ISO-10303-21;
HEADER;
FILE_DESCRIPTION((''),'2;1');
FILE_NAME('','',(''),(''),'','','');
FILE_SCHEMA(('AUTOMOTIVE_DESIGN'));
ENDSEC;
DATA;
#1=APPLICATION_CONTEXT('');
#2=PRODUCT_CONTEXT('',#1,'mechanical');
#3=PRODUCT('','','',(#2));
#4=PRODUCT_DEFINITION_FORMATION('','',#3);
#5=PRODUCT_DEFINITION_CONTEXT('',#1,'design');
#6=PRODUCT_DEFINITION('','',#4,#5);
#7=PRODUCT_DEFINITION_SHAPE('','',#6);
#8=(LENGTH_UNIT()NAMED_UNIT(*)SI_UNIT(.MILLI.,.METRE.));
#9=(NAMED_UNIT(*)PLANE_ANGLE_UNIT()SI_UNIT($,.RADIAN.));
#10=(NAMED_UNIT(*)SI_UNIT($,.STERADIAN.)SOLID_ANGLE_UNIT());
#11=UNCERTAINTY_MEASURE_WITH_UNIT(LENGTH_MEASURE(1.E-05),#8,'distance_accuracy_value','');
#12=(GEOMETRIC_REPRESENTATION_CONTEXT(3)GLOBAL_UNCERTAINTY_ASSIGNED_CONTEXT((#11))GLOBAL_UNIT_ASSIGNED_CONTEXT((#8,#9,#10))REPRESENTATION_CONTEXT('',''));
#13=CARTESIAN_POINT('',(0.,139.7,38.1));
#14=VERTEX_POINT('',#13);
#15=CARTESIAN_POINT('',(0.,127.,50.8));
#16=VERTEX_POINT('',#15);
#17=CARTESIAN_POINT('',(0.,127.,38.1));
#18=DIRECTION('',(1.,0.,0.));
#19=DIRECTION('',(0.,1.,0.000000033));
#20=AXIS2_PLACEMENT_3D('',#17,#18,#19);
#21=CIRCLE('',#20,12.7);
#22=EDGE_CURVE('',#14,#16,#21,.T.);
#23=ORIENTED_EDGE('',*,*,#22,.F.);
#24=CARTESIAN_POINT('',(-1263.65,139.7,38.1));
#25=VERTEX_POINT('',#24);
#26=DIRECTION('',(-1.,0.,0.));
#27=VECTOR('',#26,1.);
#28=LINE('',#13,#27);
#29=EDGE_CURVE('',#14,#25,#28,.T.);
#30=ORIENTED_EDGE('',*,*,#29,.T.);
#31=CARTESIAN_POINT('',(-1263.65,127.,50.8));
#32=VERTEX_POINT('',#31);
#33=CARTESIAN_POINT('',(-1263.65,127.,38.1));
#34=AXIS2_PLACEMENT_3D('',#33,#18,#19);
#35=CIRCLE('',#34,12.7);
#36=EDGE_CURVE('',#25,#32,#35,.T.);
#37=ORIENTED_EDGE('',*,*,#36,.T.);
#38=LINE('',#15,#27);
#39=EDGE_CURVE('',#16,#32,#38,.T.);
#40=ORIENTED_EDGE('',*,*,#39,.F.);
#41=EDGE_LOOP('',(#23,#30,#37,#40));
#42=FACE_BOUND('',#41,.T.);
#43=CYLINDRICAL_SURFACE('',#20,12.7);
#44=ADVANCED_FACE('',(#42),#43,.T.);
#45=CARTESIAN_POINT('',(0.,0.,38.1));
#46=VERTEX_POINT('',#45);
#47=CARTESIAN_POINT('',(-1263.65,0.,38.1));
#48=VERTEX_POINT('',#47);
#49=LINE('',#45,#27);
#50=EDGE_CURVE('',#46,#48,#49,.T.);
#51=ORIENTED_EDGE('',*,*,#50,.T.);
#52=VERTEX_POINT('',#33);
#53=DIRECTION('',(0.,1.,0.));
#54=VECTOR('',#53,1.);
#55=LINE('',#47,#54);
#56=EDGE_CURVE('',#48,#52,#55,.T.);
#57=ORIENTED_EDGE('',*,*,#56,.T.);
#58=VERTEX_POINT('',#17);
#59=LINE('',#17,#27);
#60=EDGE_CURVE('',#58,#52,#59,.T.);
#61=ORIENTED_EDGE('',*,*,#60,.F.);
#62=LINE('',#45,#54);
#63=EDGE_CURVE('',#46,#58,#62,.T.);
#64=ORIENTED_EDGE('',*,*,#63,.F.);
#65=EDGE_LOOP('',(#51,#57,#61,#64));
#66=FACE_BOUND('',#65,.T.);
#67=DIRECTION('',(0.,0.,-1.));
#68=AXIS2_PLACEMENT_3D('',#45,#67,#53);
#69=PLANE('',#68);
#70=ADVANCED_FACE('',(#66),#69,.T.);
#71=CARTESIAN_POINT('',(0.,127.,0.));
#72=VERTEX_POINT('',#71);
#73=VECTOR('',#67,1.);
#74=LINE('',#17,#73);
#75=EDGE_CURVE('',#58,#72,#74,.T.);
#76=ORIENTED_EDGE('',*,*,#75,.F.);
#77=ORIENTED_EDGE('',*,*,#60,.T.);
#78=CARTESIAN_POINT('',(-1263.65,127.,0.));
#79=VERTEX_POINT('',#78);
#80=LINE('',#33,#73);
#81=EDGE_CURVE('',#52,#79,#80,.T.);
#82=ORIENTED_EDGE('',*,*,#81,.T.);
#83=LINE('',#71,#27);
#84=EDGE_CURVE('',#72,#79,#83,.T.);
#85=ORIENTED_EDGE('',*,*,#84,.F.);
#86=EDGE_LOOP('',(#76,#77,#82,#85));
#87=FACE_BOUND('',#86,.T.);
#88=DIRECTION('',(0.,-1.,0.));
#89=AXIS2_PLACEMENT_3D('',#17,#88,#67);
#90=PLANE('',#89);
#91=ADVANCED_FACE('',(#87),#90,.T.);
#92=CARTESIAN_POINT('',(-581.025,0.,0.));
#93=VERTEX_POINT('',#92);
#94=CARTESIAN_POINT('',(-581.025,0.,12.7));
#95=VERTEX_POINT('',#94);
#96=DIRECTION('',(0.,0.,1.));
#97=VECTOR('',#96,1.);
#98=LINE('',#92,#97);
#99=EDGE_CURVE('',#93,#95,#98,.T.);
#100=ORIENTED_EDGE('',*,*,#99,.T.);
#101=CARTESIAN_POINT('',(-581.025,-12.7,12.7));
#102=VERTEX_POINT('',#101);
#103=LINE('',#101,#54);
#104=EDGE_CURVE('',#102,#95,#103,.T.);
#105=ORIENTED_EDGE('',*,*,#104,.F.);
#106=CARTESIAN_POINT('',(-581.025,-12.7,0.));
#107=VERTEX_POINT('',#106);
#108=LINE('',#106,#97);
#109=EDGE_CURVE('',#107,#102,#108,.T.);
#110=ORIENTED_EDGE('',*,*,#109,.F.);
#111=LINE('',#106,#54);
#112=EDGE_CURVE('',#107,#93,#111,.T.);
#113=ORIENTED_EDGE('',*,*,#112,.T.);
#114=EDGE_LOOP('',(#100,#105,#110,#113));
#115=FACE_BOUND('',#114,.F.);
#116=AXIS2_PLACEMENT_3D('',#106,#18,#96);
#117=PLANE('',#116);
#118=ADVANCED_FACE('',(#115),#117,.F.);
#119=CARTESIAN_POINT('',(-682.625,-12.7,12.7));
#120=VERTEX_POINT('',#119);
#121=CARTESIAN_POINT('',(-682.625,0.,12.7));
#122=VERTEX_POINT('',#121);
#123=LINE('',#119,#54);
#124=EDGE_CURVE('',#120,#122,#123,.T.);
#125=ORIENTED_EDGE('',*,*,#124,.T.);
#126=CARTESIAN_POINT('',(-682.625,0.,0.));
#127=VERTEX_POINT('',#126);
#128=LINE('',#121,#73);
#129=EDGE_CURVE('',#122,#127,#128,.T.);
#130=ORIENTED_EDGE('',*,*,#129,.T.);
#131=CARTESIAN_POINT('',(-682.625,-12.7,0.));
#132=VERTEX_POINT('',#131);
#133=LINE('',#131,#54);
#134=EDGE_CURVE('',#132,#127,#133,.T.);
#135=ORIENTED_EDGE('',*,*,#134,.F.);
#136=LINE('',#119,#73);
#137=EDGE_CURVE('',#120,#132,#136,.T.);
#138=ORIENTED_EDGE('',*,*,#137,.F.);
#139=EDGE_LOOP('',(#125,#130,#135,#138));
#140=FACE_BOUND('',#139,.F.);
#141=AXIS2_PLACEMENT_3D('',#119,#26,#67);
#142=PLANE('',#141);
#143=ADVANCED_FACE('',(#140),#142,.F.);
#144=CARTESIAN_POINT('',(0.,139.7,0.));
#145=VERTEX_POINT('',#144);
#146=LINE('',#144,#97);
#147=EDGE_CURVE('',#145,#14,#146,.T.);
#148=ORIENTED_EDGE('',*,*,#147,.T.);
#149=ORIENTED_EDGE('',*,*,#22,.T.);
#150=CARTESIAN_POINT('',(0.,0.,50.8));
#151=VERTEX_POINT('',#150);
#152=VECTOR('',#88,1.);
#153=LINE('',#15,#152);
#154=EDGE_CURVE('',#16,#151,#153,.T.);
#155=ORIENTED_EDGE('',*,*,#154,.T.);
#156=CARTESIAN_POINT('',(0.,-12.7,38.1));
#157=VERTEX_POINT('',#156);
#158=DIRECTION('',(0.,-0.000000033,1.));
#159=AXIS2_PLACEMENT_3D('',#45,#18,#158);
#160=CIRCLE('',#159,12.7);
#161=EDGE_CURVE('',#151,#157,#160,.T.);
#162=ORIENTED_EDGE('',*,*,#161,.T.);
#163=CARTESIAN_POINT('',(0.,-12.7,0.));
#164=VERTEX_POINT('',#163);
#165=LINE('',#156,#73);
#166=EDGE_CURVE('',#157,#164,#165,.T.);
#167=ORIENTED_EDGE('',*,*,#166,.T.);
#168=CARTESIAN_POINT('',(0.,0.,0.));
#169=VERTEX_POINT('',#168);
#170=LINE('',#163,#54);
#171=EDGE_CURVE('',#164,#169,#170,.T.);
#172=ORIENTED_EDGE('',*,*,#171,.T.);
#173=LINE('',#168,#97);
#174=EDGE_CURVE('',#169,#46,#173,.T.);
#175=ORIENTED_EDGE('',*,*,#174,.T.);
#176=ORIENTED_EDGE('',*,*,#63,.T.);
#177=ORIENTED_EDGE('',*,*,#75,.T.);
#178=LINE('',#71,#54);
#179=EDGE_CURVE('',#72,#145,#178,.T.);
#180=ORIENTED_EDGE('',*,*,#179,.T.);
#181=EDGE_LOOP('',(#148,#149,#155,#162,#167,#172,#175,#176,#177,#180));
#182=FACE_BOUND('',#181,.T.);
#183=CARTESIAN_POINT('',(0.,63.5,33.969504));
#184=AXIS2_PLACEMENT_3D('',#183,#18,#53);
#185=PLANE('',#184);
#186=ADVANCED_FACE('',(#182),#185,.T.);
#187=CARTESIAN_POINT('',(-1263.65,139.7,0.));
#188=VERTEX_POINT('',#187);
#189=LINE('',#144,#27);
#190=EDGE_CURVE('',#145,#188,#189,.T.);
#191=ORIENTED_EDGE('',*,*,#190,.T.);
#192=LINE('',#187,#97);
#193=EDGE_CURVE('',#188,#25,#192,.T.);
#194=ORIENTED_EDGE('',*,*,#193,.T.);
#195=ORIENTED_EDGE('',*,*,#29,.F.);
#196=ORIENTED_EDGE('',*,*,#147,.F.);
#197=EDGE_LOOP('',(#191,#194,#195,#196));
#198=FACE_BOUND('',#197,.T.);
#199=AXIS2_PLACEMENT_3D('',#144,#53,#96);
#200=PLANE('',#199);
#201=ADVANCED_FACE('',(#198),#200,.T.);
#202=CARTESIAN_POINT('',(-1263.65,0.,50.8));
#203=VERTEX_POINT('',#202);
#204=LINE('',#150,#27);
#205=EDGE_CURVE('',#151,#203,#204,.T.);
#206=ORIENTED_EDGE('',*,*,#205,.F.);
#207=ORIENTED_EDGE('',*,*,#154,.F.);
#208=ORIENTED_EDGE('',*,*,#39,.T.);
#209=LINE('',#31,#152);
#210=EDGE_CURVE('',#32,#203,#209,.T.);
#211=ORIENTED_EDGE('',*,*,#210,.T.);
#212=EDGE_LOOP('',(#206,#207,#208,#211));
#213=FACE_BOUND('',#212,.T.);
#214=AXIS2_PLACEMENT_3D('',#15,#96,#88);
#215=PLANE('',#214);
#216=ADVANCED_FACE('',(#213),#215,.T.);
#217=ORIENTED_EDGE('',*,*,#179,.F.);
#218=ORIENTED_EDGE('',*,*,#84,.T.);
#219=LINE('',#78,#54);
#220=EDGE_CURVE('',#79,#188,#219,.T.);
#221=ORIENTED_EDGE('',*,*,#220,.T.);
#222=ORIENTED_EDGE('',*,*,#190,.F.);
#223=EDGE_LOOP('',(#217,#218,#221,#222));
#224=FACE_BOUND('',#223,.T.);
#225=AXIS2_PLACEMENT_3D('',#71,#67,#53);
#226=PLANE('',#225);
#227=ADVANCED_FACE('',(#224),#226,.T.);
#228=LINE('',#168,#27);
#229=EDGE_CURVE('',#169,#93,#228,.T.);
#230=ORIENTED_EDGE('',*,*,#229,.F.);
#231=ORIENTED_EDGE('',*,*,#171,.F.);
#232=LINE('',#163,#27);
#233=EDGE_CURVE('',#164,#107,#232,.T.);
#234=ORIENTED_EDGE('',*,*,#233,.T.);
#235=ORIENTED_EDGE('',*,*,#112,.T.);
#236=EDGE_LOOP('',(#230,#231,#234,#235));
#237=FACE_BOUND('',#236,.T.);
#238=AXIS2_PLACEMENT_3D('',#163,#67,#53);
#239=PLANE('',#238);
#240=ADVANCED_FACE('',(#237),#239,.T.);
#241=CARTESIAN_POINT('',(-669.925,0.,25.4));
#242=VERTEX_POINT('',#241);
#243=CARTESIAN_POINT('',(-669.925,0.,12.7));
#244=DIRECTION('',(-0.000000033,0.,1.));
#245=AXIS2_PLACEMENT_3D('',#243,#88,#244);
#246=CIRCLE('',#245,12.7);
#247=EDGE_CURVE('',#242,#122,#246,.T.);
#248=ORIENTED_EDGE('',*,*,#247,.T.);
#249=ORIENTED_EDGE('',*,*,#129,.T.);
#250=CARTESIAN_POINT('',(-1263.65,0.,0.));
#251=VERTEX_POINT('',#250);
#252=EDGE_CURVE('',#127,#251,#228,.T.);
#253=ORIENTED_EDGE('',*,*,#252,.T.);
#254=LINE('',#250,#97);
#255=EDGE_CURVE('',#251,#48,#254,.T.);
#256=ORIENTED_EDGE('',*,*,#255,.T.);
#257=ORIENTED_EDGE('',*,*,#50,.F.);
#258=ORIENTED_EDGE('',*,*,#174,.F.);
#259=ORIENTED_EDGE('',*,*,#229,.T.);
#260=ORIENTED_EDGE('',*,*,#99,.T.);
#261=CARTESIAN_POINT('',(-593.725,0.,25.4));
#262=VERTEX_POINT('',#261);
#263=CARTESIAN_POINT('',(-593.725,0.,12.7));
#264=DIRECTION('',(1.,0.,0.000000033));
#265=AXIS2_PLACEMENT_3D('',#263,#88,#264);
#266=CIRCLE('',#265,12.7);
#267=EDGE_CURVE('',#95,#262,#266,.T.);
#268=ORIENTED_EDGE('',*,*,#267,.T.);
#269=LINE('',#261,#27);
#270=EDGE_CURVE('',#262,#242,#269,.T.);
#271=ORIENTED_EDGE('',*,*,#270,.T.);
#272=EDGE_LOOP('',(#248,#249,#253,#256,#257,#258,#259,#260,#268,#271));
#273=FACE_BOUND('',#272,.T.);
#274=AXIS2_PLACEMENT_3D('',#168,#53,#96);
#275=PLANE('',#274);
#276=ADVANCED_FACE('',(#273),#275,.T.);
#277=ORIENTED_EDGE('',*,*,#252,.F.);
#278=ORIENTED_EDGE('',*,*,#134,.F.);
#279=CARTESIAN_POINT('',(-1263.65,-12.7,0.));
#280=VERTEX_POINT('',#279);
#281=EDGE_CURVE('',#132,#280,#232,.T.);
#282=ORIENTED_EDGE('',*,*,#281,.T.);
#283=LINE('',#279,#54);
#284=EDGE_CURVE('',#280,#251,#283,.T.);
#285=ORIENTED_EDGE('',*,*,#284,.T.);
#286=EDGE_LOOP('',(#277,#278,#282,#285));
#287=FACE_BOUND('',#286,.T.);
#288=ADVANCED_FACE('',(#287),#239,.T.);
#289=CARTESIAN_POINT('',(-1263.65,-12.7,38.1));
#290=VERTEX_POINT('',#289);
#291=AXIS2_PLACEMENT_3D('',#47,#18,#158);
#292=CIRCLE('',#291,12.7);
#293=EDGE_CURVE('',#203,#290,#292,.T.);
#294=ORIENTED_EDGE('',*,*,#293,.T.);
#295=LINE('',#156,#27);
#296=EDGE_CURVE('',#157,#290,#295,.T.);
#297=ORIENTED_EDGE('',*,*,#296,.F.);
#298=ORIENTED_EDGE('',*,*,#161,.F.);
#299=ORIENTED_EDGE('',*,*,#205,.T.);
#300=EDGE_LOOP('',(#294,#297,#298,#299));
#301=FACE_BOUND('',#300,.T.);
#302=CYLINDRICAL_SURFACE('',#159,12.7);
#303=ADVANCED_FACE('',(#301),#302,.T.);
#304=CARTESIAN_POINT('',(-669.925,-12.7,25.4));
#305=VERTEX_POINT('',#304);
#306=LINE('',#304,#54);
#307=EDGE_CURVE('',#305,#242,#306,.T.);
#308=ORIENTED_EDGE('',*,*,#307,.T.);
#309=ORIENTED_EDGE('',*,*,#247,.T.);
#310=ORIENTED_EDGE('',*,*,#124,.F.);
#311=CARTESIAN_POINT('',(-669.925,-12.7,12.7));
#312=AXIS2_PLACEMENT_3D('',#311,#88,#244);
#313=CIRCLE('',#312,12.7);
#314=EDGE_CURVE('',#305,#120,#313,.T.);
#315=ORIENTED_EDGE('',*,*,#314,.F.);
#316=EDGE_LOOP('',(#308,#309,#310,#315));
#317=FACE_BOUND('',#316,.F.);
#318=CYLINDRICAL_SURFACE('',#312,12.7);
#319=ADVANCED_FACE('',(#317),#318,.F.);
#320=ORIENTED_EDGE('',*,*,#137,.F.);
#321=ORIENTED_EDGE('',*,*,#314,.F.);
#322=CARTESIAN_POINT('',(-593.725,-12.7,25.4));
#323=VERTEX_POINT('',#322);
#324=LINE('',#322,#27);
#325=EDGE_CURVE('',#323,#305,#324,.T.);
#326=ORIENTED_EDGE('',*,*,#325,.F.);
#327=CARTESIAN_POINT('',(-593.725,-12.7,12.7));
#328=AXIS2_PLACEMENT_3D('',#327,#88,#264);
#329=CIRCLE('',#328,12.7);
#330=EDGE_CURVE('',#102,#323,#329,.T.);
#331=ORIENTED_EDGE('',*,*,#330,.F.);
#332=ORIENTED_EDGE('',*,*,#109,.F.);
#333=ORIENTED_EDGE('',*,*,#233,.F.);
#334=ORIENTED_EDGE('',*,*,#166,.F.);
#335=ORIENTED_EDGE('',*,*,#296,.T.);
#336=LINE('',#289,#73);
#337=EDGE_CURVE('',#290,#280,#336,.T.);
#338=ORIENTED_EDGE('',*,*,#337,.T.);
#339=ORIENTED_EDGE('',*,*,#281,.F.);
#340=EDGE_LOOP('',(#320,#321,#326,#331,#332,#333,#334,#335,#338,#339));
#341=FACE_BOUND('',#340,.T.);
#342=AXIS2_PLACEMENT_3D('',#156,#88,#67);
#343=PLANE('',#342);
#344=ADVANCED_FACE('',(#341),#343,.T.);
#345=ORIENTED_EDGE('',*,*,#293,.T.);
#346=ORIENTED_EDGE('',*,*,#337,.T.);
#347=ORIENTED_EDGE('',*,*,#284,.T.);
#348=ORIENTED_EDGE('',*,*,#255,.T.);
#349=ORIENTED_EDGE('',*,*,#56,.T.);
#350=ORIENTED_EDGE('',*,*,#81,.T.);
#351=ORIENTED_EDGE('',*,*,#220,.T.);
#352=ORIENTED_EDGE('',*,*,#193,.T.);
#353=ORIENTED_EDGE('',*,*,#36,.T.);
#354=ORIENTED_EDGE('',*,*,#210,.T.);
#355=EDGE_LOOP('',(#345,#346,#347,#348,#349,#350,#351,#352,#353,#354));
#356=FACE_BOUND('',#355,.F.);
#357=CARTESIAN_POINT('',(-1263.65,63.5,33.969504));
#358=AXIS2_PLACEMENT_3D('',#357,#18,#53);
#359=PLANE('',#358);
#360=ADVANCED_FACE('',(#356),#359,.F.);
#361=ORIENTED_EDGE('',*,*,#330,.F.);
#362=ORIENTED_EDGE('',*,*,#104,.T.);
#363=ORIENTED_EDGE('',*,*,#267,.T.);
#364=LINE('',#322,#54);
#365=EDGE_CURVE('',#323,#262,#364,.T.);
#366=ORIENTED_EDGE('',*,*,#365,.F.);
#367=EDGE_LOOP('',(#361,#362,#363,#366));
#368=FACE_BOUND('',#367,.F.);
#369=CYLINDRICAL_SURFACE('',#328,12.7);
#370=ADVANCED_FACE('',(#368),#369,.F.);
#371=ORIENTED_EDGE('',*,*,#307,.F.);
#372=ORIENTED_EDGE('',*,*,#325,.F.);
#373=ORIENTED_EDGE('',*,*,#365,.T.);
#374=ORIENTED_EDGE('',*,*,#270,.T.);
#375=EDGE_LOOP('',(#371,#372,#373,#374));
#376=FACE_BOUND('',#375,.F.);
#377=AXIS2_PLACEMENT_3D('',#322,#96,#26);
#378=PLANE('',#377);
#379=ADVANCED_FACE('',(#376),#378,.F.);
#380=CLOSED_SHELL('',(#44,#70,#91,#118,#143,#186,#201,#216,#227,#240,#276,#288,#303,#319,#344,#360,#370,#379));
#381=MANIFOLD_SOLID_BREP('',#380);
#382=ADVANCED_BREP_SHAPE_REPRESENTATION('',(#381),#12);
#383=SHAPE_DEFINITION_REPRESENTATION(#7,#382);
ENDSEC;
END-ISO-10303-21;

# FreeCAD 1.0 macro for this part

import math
import FreeCAD as App
import Part
import Sketcher
from FreeCAD import Vector
Q = App.Units.Quantity

doc = App.newDocument("Part")
body = doc.addObject("PartDesign::Body", "Body")

sketch1 = body.newObject("Sketcher::SketchObject", "Sketch")
sketch1.AttachmentSupport = (doc.getObject("YZ_Plane"), [""])
sketch1.MapMode = "FlatFace"
sketch1.addGeometry([
    Part.LineSegment(Vector(-13, 0, 0), Vector(0, 0, 0)),
    Part.LineSegment(Vector(0, 0, 0), Vector(0, 38, 0)),
    Part.LineSegment(Vector(0, 38, 0), Vector(127, 38, 0)),
    Part.LineSegment(Vector(127, 38, 0), Vector(127, 0, 0)),
    Part.LineSegment(Vector(127, 0, 0), Vector(140, 0, 0)),
    Part.LineSegment(Vector(140, 0, 0), Vector(140, 38, 0)),
    Part.ArcOfCircle(Part.Circle(Vector(127, 38, 0), Vector(0, 0, 1), 13), math.radians(0), math.radians(90)),
    Part.LineSegment(Vector(127, 51, 0), Vector(0, 51, 0)),
    Part.ArcOfCircle(Part.Circle(Vector(0, 38, 0), Vector(0, 0, 1), 13), math.radians(90), math.radians(180)),
    Part.LineSegment(Vector(-13, 38, 0), Vector(-13, 0, 0)),
], False)
sketch1.addConstraint([
    Sketcher.Constraint("Coincident", 0, 2, 1, 1),
    Sketcher.Constraint("Coincident", 1, 2, 2, 1),
    Sketcher.Constraint("Coincident", 2, 2, 3, 1),
    Sketcher.Constraint("Coincident", 3, 2, 4, 1),
    Sketcher.Constraint("Coincident", 4, 2, 5, 1),
    Sketcher.Constraint("Tangent", 5, 2, 6, 1),
    Sketcher.Constraint("Tangent", 6, 2, 7, 1),
    Sketcher.Constraint("Tangent", 7, 2, 8, 1),
    Sketcher.Constraint("Tangent", 8, 2, 9, 1),
    Sketcher.Constraint("Coincident", 9, 2, 0, 1),
    Sketcher.Constraint("Horizontal", 0),
    Sketcher.Constraint("Vertical", 1),
    Sketcher.Constraint("Horizontal", 2),
    Sketcher.Constraint("Vertical", 3),
    Sketcher.Constraint("Horizontal", 4),
    Sketcher.Constraint("Vertical", 5),
    Sketcher.Constraint("Horizontal", 7),
    Sketcher.Constraint("Vertical", 9),
    Sketcher.Constraint("Coincident", 0, 2, -1, 1),
    Sketcher.Constraint("Coincident", 1, 2, 8, 3),
    Sketcher.Constraint("Coincident", 2, 2, 6, 3),
    Sketcher.Constraint("PointOnObject", 3, 2, -1),
    Sketcher.Constraint("Radius", 6, Q("0.5 in")),
    Sketcher.Constraint("DistanceX", 2, 1, 2, 2, Q("5 in")),
    Sketcher.Constraint("DistanceY", 1, 1, 1, 2, Q("1.5 in")),
])
pad1 = body.newObject("PartDesign::Pad", "Pad")
pad1.Profile = sketch1
pad1.Length = Q("49.75 in")
pad1.Reversed = True

sketch2 = body.newObject("Sketcher::SketchObject", "Sketch001")
sketch2.AttachmentSupport = (doc.getObject("XZ_Plane"), [""])
sketch2.MapMode = "FlatFace"
sketch2.AttachmentOffset = App.Placement(Vector(0, 0, 0.5 * 25.4), App.Rotation())
sketch2.addGeometry([
    Part.LineSegment(Vector(-683, 0, 0), Vector(-581, 0, 0)),
    Part.LineSegment(Vector(-581, 0, 0), Vector(-581, 13, 0)),
    Part.ArcOfCircle(Part.Circle(Vector(-594, 13, 0), Vector(0, 0, 1), 13), math.radians(0), math.radians(90)),
    Part.LineSegment(Vector(-594, 25, 0), Vector(-670, 25, 0)),
    Part.ArcOfCircle(Part.Circle(Vector(-670, 13, 0), Vector(0, 0, 1), 13), math.radians(90), math.radians(180)),
    Part.LineSegment(Vector(-683, 13, 0), Vector(-683, 0, 0)),
], False)
sketch2.addConstraint([
    Sketcher.Constraint("Coincident", 0, 2, 1, 1),
    Sketcher.Constraint("Tangent", 1, 2, 2, 1),
    Sketcher.Constraint("Tangent", 2, 2, 3, 1),
    Sketcher.Constraint("Tangent", 3, 2, 4, 1),
    Sketcher.Constraint("Tangent", 4, 2, 5, 1),
    Sketcher.Constraint("Coincident", 5, 2, 0, 1),
    Sketcher.Constraint("Horizontal", 0),
    Sketcher.Constraint("Vertical", 1),
    Sketcher.Constraint("Horizontal", 3),
    Sketcher.Constraint("Vertical", 5),
    Sketcher.Constraint("Equal", 2, 4),
    Sketcher.Constraint("PointOnObject", 0, 2, -1),
    Sketcher.Constraint("Radius", 2, Q("0.5 in")),
    Sketcher.Constraint("DistanceX", 0, 1, 0, 2, Q("4 in")),
    Sketcher.Constraint("DistanceY", 1, 1, 1, 2, Q("0.5 in")),
    Sketcher.Constraint("DistanceX", 2, 3, -1, 1, Q("23.375 in")),
])
pocket1 = body.newObject("PartDesign::Pocket", "Pocket")
pocket1.Profile = sketch2
pocket1.Length = Q("0.5 in")

doc.recompute()
